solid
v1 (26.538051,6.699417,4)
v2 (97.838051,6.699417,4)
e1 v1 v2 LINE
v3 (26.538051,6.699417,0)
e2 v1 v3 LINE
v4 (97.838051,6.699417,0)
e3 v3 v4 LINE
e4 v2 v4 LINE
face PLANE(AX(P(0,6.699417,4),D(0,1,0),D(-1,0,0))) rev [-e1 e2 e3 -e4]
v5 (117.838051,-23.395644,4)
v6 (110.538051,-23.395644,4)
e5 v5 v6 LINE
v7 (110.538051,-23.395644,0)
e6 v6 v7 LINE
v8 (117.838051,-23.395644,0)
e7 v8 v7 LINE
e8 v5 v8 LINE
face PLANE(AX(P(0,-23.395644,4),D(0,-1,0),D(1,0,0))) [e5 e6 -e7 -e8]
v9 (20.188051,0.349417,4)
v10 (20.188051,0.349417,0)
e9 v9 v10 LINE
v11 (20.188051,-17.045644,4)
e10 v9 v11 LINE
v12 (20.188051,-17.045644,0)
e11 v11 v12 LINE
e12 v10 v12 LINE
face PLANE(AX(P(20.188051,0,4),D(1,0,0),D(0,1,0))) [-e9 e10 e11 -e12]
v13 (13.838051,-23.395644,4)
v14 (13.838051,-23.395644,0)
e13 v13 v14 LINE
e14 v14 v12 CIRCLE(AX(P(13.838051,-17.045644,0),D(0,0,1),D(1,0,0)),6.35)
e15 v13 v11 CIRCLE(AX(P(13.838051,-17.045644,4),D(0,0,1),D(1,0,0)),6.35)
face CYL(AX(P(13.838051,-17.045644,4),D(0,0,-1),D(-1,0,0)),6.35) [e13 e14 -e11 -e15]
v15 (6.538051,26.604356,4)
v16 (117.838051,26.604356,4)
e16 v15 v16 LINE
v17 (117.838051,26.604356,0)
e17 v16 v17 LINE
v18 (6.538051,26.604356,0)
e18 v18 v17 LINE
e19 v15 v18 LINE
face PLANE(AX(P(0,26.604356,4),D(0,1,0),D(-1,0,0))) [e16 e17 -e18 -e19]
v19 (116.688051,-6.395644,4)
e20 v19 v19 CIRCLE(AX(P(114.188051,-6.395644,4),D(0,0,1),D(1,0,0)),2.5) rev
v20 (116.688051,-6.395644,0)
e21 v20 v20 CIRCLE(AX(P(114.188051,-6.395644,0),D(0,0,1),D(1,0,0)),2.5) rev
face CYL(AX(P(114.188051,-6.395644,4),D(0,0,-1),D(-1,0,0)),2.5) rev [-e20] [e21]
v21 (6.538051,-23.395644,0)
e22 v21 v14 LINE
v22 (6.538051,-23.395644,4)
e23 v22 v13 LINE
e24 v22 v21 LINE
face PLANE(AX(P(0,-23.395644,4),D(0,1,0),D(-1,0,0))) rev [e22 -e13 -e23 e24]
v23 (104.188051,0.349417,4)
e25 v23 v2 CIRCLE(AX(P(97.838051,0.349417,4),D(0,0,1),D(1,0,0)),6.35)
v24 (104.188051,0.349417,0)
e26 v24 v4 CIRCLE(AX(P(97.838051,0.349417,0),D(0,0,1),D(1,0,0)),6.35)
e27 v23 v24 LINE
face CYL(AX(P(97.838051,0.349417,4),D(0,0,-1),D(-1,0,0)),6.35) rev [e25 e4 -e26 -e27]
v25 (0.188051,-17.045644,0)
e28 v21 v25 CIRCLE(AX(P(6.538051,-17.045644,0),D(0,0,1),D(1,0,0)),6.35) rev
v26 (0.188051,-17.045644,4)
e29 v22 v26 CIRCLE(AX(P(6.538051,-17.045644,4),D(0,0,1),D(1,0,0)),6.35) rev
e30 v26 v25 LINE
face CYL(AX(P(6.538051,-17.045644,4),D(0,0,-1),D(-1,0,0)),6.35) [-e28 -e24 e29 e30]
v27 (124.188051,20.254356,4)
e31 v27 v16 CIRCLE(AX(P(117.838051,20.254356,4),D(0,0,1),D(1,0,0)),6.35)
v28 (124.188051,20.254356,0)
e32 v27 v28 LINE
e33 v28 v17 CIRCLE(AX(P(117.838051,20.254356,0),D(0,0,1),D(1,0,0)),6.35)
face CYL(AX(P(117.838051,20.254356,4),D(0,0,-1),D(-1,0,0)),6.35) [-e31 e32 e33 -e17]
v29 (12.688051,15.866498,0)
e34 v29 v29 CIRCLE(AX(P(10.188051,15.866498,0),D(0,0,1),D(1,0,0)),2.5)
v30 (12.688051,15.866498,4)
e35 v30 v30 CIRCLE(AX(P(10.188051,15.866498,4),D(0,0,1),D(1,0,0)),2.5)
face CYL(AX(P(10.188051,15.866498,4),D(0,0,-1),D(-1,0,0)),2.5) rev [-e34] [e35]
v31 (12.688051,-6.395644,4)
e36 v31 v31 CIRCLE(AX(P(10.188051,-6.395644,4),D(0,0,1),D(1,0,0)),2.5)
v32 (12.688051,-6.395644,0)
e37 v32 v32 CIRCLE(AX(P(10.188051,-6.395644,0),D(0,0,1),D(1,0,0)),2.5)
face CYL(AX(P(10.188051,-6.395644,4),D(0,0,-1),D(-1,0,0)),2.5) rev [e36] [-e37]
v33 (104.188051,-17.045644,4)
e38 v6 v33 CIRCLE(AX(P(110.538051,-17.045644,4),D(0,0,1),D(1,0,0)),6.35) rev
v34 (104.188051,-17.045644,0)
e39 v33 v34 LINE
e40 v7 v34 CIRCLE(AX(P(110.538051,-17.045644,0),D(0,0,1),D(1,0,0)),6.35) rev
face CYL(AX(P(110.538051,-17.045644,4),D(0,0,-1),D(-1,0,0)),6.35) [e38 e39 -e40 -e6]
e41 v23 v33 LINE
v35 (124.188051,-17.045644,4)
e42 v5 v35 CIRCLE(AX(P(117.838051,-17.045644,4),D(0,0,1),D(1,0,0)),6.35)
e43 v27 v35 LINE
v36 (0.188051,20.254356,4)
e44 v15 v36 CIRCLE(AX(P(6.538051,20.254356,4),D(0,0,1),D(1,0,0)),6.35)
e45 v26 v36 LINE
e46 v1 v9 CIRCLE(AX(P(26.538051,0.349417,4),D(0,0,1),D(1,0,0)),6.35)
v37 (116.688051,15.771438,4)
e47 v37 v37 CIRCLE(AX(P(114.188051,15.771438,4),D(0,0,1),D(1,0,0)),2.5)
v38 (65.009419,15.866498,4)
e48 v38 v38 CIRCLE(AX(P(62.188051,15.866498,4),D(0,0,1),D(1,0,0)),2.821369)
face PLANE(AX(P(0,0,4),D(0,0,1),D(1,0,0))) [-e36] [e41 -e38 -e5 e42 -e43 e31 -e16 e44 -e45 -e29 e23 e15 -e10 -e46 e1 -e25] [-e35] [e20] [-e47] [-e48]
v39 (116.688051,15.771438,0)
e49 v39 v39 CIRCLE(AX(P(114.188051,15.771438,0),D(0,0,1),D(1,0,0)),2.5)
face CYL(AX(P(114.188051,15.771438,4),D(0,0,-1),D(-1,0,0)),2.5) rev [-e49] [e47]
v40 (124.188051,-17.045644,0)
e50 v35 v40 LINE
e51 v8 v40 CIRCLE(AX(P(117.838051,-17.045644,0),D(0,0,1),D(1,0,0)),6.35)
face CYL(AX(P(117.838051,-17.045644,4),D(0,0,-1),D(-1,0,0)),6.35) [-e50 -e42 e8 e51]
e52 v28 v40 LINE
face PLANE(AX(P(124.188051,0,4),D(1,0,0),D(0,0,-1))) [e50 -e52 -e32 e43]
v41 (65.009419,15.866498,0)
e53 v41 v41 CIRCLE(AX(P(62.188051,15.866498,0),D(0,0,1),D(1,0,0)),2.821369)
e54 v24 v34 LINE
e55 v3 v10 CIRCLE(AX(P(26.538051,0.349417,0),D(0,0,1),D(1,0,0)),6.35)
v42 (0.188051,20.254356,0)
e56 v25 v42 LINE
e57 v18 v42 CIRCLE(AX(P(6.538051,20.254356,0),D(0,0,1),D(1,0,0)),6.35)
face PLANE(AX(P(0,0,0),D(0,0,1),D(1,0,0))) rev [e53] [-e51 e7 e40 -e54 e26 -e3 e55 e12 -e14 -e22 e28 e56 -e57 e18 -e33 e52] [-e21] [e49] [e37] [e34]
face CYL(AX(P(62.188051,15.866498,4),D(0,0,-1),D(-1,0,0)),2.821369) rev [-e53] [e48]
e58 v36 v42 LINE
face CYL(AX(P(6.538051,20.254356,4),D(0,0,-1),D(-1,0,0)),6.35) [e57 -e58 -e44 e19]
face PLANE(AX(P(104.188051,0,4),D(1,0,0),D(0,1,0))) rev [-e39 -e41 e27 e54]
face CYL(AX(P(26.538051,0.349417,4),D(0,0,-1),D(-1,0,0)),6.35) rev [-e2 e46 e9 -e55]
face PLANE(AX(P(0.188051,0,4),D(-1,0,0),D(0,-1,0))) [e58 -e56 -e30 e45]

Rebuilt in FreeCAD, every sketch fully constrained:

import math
import FreeCAD as App
import Part
import Sketcher
from FreeCAD import Vector
Q = App.Units.Quantity

doc = App.newDocument("Part")
params = doc.addObject("Spreadsheet::Sheet", "Params")
for row, (alias, value) in enumerate([
    ("sketch1_diameter", "5 mm"),
    ("sketch1_radius", "6.35 mm"),
    ("sketch1_width", "71.3 mm"),
    ("sketch1_width2", "7.3 mm"),
    ("sketch1_height", "37.3 mm"),
    ("pad1_length", "4 mm"),
], start=1):
    params.set(f"A{row}", alias)
    params.set(f"B{row}", "=" + value)
    params.setAlias(f"B{row}", alias)

body = doc.addObject("PartDesign::Body", "Body")

# Sketch on XY plane
sketch1 = body.newObject("Sketcher::SketchObject", "Sketch")
sketch1.AttachmentSupport = (doc.getObject("XY_Plane"), [""])
sketch1.MapMode = "FlatFace"
sketch1.addGeometry([
    Part.LineSegment(Vector(26.5, 6.7, 0), Vector(97.8, 6.7, 0)),  # 0
    Part.ArcOfCircle(Part.Circle(Vector(97.8, 0.3, 0), Vector(0, 0, 1), 6.4), math.radians(0), math.radians(90)),  # 1
    Part.LineSegment(Vector(104.2, 0.3, 0), Vector(104.2, -17, 0)),  # 2
    Part.ArcOfCircle(Part.Circle(Vector(110.5, -17, 0), Vector(0, 0, 1), 6.3), math.radians(180), math.radians(270)),  # 3
    Part.LineSegment(Vector(110.5, -23.4, 0), Vector(117.8, -23.4, 0)),  # 4
    Part.ArcOfCircle(Part.Circle(Vector(117.8, -17, 0), Vector(0, 0, 1), 6.4), math.radians(-90), math.radians(0)),  # 5
    Part.LineSegment(Vector(124.2, -17, 0), Vector(124.2, 20.3, 0)),  # 6
    Part.ArcOfCircle(Part.Circle(Vector(117.8, 20.3, 0), Vector(0, 0, 1), 6.3), math.radians(0), math.radians(90)),  # 7
    Part.LineSegment(Vector(117.8, 26.6, 0), Vector(6.5, 26.6, 0)),  # 8
    Part.ArcOfCircle(Part.Circle(Vector(6.5, 20.3, 0), Vector(0, 0, 1), 6.3), math.radians(90), math.radians(180)),  # 9
    Part.LineSegment(Vector(0.2, 20.3, 0), Vector(0.2, -17, 0)),  # 10
    Part.ArcOfCircle(Part.Circle(Vector(6.5, -17, 0), Vector(0, 0, 1), 6.3), math.radians(180), math.radians(270)),  # 11
    Part.LineSegment(Vector(6.5, -23.4, 0), Vector(13.8, -23.4, 0)),  # 12
    Part.ArcOfCircle(Part.Circle(Vector(13.8, -17, 0), Vector(0, 0, 1), 6.4), math.radians(-90), math.radians(0)),  # 13
    Part.LineSegment(Vector(20.2, -17, 0), Vector(20.2, 0.3, 0)),  # 14
    Part.ArcOfCircle(Part.Circle(Vector(26.5, 0.3, 0), Vector(0, 0, 1), 6.3), math.radians(90), math.radians(180)),  # 15
    Part.Circle(Vector(10.2, -6.4, 0), Vector(0, 0, 1), 2.5),  # 16
    Part.Circle(Vector(114.2, -6.4, 0), Vector(0, 0, 1), 2.5),  # 17
    Part.Circle(Vector(10.2, 15.9, 0), Vector(0, 0, 1), 2.5),  # 18
    Part.Circle(Vector(62.2, 15.9, 0), Vector(0, 0, 1), 2.8),  # 19
    Part.Circle(Vector(114.2, 15.8, 0), Vector(0, 0, 1), 2.5),  # 20
], False)
sketch1.addConstraint([
    Sketcher.Constraint("Tangent", 0, 2, 1, 2),
    Sketcher.Constraint("Tangent", 1, 1, 2, 1),
    Sketcher.Constraint("Tangent", 2, 2, 3, 1),
    Sketcher.Constraint("Tangent", 3, 2, 4, 1),
    Sketcher.Constraint("Tangent", 4, 2, 5, 1),
    Sketcher.Constraint("Tangent", 5, 2, 6, 1),
    Sketcher.Constraint("Tangent", 6, 2, 7, 1),
    Sketcher.Constraint("Tangent", 7, 2, 8, 1),
    Sketcher.Constraint("Tangent", 8, 2, 9, 1),
    Sketcher.Constraint("Tangent", 9, 2, 10, 1),
    Sketcher.Constraint("Tangent", 10, 2, 11, 1),
    Sketcher.Constraint("Tangent", 11, 2, 12, 1),
    Sketcher.Constraint("Tangent", 12, 2, 13, 1),
    Sketcher.Constraint("Tangent", 13, 2, 14, 1),
    Sketcher.Constraint("Tangent", 14, 2, 15, 2),
    Sketcher.Constraint("Tangent", 15, 1, 0, 1),
    Sketcher.Constraint("Horizontal", 0),
    Sketcher.Constraint("Vertical", 2),
    Sketcher.Constraint("Horizontal", 4),
    Sketcher.Constraint("Vertical", 6),
    Sketcher.Constraint("Horizontal", 8),
    Sketcher.Constraint("Vertical", 10),
    Sketcher.Constraint("Horizontal", 12),
    Sketcher.Constraint("Vertical", 14),
    Sketcher.Constraint("Equal", 1, 3),
    Sketcher.Constraint("Equal", 3, 5),
    Sketcher.Constraint("Equal", 5, 7),
    Sketcher.Constraint("Equal", 7, 9),
    Sketcher.Constraint("Equal", 9, 11),
    Sketcher.Constraint("Equal", 11, 13),
    Sketcher.Constraint("Equal", 13, 15),
    Sketcher.Constraint("Equal", 16, 17),
    Sketcher.Constraint("Equal", 17, 18),
    Sketcher.Constraint("Equal", 18, 20),
    Sketcher.Constraint("Horizontal", 5, 3, 11, 3),
    Sketcher.Constraint("Horizontal", 16, 3, 17, 3),
    Sketcher.Constraint("Horizontal", 18, 3, 19, 3),
    Sketcher.Constraint("Vertical", 16, 3, 18, 3),
    Sketcher.Constraint("Vertical", 17, 3, 20, 3),
    Sketcher.Constraint("Equal", 4, 12),
    Sketcher.Constraint("Diameter", 16, Q("5 mm")),
    Sketcher.Constraint("Radius", 1, Q("6.35 mm")),
    Sketcher.Constraint("DistanceX", 0, 1, 0, 2, Q("71.3 mm")),
    Sketcher.Constraint("DistanceX", 4, 1, 4, 2, Q("7.3 mm")),
    Sketcher.Constraint("DistanceY", 6, 1, 6, 2, Q("37.3 mm")),
    Sketcher.Constraint("DistanceX", 18, 3, 19, 3, Q("52 mm")),
    Sketcher.Constraint("DistanceX", 1, 1, 17, 3, Q("10 mm")),
    Sketcher.Constraint("DistanceY", 3, 2, 17, 3, Q("17 mm")),
    Sketcher.Constraint("DistanceX", 9, 2, 18, 3, Q("10 mm")),
    Sketcher.Constraint("Diameter", 19, Q("5.642737 mm")),
    Sketcher.Constraint("DistanceY", 2, 2, 2, 1, Q("17.395061 mm")),
    Sketcher.Constraint("DistanceY", -1, 1, 18, 3, Q("15.866498 mm")),
    Sketcher.Constraint("DistanceX", -1, 1, 1, 3, Q("97.838051 mm")),
    Sketcher.Constraint("DistanceY", 15, 3, 18, 3, Q("15.517081 mm")),
    Sketcher.Constraint("DistanceY", 20, 3, 7, 3, Q("4.482919 mm")),
])
sketch1.setExpression("Constraints[40]", "Params.sketch1_diameter")
sketch1.setExpression("Constraints[41]", "Params.sketch1_radius")
sketch1.setExpression("Constraints[42]", "Params.sketch1_width")
sketch1.setExpression("Constraints[43]", "Params.sketch1_width2")
sketch1.setExpression("Constraints[44]", "Params.sketch1_height")
pad1 = body.newObject("PartDesign::Pad", "Pad")
pad1.Profile = sketch1
pad1.setExpression("Length", "Params.pad1_length")

doc.recompute()
